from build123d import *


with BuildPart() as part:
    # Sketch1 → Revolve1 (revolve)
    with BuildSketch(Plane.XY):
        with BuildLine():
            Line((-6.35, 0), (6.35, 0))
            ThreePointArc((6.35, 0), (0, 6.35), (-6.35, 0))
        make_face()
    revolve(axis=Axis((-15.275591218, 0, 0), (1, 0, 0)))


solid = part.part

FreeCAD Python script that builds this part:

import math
import FreeCAD as App
import Part
import Sketcher
Q = App.Units.Quantity

doc = App.newDocument("Part")
body = doc.addObject("PartDesign::Body", "Body")

sketch1 = body.newObject("Sketcher::SketchObject", "Sketch")
sketch1.AttachmentSupport = (doc.getObject("XY_Plane"), [""])
sketch1.MapMode = "FlatFace"
sketch1.addGeometry([
    Part.LineSegment(App.Vector(-6, 0, 0), App.Vector(6, 0, 0)),
    Part.ArcOfCircle(Part.Circle(App.Vector(0, 0, 0), App.Vector(0, 0, 1), 6), math.radians(0), math.radians(180)),
], False)
sketch1.addConstraint([
    Sketcher.Constraint("Coincident", 0, 1, 1, 2),
    Sketcher.Constraint("Coincident", 1, 1, 0, 2),
    Sketcher.Constraint("Horizontal", 0),
    Sketcher.Constraint("Coincident", 1, 3, -1, 1),
    Sketcher.Constraint("PointOnObject", 0, 1, -1),
    Sketcher.Constraint("Radius", 1, Q("0.25 in")),
])
revolution = body.newObject("PartDesign::Revolution", "Revolution")
revolution.Profile = sketch1
revolution.ReferenceAxis = (sketch1, ["H_Axis"])
revolution.Angle = 360

doc.recompute()
